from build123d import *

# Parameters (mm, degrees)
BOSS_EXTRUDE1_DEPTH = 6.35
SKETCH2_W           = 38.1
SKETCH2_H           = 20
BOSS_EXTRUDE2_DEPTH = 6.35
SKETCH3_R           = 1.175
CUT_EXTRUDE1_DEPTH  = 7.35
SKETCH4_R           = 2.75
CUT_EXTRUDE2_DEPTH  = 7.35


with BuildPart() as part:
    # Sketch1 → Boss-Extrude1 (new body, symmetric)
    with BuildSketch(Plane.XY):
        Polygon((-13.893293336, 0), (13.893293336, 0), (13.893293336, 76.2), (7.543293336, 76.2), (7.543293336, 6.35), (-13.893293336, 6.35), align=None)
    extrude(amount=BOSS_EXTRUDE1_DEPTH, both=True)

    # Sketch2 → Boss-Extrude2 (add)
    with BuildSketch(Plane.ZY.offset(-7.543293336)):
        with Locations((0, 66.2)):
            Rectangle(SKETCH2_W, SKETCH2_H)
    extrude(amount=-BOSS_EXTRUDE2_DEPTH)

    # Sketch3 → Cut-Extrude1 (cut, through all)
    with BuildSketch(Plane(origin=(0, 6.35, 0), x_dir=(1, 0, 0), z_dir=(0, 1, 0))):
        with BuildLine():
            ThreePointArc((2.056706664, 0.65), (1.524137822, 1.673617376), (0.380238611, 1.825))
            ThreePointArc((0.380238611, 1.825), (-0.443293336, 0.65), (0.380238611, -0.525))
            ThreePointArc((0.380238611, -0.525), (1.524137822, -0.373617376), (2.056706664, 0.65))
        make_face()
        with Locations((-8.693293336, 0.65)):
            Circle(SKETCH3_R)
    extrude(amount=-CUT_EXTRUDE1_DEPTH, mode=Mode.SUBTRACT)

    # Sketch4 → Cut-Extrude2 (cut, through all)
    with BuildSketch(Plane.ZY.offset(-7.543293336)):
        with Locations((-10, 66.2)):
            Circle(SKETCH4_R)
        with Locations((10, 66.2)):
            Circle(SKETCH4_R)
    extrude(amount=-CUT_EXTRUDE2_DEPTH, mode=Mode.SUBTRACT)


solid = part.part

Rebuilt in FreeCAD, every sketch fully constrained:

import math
import FreeCAD as App
import Part
import Sketcher
from FreeCAD import Vector
Q = App.Units.Quantity

doc = App.newDocument("Part")
params = doc.addObject("Spreadsheet::Sheet", "Params")
for row, (alias, value) in enumerate([
    ("sketch1_height", "3 in"),
    ("sketch1_width", "0.25 in"),
    ("pad1_length", "0.5 in"),
    ("sketch2_height", "1.5 in"),
    ("pad2_length", "0.25 in"),
], start=1):
    params.set(f"A{row}", alias)
    params.set(f"B{row}", "=" + value)
    params.setAlias(f"B{row}", alias)

body = doc.addObject("PartDesign::Body", "Body")

# Sketch on XY plane
sketch1 = doc.addObject("Sketcher::SketchObject", "Sketch")
body.addObject(sketch1)
sketch1.AttachmentSupport = (doc.XY_Plane, [""])
sketch1.MapMode = "FlatFace"
sketch1.addGeometry(Part.LineSegment(Vector(-14, 0, 0), Vector(14, 0, 0)), False)
sketch1.addGeometry(Part.LineSegment(Vector(14, 0, 0), Vector(14, 76, 0)), False)
sketch1.addGeometry(Part.LineSegment(Vector(14, 76, 0), Vector(8, 76, 0)), False)
sketch1.addGeometry(Part.LineSegment(Vector(8, 76, 0), Vector(8, 6, 0)), False)
sketch1.addGeometry(Part.LineSegment(Vector(8, 6, 0), Vector(-14, 6, 0)), False)
sketch1.addGeometry(Part.LineSegment(Vector(-14, 6, 0), Vector(-14, 0, 0)), False)
sketch1.addConstraint(Sketcher.Constraint("Coincident", 0, 2, 1, 1))
sketch1.addConstraint(Sketcher.Constraint("Coincident", 1, 2, 2, 1))
sketch1.addConstraint(Sketcher.Constraint("Coincident", 2, 2, 3, 1))
sketch1.addConstraint(Sketcher.Constraint("Coincident", 3, 2, 4, 1))
sketch1.addConstraint(Sketcher.Constraint("Coincident", 4, 2, 5, 1))
sketch1.addConstraint(Sketcher.Constraint("Coincident", 5, 2, 0, 1))
sketch1.addConstraint(Sketcher.Constraint("Horizontal", 0))
sketch1.addConstraint(Sketcher.Constraint("Vertical", 1))
sketch1.addConstraint(Sketcher.Constraint("Horizontal", 2))
sketch1.addConstraint(Sketcher.Constraint("Vertical", 3))
sketch1.addConstraint(Sketcher.Constraint("Horizontal", 4))
sketch1.addConstraint(Sketcher.Constraint("Vertical", 5))
sketch1.addConstraint(Sketcher.Constraint("Symmetric", 0, 2, 5, 2, -1, 1))
sketch1.addConstraint(Sketcher.Constraint("Equal", 2, 5))
sketch1.addConstraint(Sketcher.Constraint("DistanceY", 1, 1, 1, 2, Q("3 in")))
sketch1.addConstraint(Sketcher.Constraint("DistanceX", 2, 2, 2, 1, Q("0.25 in")))
sketch1.addConstraint(Sketcher.Constraint("DistanceX", 0, 1, 0, 2, Q("27.786587 mm")))
sketch1.setExpression("Constraints[14]", "Params.sketch1_height")
sketch1.setExpression("Constraints[15]", "Params.sketch1_width")
pad1 = doc.addObject("PartDesign::Pad", "Pad")
body.addObject(pad1)
pad1.Profile = sketch1
pad1.setExpression("Length", "Params.pad1_length")
pad1.Midplane = True

# Sketch on YZ plane
sketch2 = doc.addObject("Sketcher::SketchObject", "Sketch001")
body.addObject(sketch2)
sketch2.AttachmentSupport = (doc.YZ_Plane, [""])
sketch2.MapMode = "FlatFace"
sketch2.AttachmentOffset = App.Placement(Vector(0, 0, 7.543293), App.Rotation())
sketch2.addGeometry(Part.LineSegment(Vector(76, -19, 0), Vector(56, -19, 0)), False)
sketch2.addGeometry(Part.LineSegment(Vector(56, -19, 0), Vector(56, 19, 0)), False)
sketch2.addGeometry(Part.LineSegment(Vector(56, 19, 0), Vector(76, 19, 0)), False)
sketch2.addGeometry(Part.LineSegment(Vector(76, 19, 0), Vector(76, -19, 0)), False)
sketch2.addConstraint(Sketcher.Constraint("Coincident", 0, 2, 1, 1))
sketch2.addConstraint(Sketcher.Constraint("Coincident", 1, 2, 2, 1))
sketch2.addConstraint(Sketcher.Constraint("Coincident", 2, 2, 3, 1))
sketch2.addConstraint(Sketcher.Constraint("Coincident", 3, 2, 0, 1))
sketch2.addConstraint(Sketcher.Constraint("Horizontal", 0))
sketch2.addConstraint(Sketcher.Constraint("Vertical", 1))
sketch2.addConstraint(Sketcher.Constraint("Horizontal", 2))
sketch2.addConstraint(Sketcher.Constraint("Vertical", 3))
sketch2.addConstraint(Sketcher.Constraint("DistanceY", 1, 1, 1, 2, Q("1.5 in")))
sketch2.addConstraint(Sketcher.Constraint("DistanceX", -1, 1, 2, 2, Q("3 in")))
sketch2.addConstraint(Sketcher.Constraint("DistanceY", 0, 2, -1, 1, Q("0.75 in")))
sketch2.addConstraint(Sketcher.Constraint("DistanceX", 0, 2, 0, 1, Q("20 mm")))
sketch2.setExpression("Constraints[8]", "Params.sketch2_height")
pad2 = doc.addObject("PartDesign::Pad", "Pad001")
body.addObject(pad2)
pad2.Profile = sketch2
pad2.setExpression("Length", "Params.pad2_length")

# Sketch on XZ plane
sketch3 = doc.addObject("Sketcher::SketchObject", "Sketch002")
body.addObject(sketch3)
sketch3.AttachmentSupport = (doc.XZ_Plane, [""])
sketch3.MapMode = "FlatFace"
sketch3.AttachmentOffset = App.Placement(Vector(0, 0, -0.25 * 25.4), App.Rotation())
sketch3.addGeometry(Part.ArcOfCircle(Part.Circle(Vector(0.8, -0.6, 0), Vector(0, 0, 1), 1.3), math.radians(-110), math.radians(0)), False)
sketch3.addGeometry(Part.ArcOfCircle(Part.Circle(Vector(0.8, -0.7, 0), Vector(0, 0, 1), 1.2), math.radians(110), math.radians(250)), False)
sketch3.addGeometry(Part.ArcOfCircle(Part.Circle(Vector(0.8, -0.7, 0), Vector(0, 0, 1), 1.3), math.radians(0), math.radians(110)), False)
sketch3.addGeometry(Part.Circle(Vector(-8.7, -0.7, 0), Vector(0, 0, 1), 1.2), False)
sketch3.addConstraint(Sketcher.Constraint("Tangent", 0, 1, 1, 2))
sketch3.addConstraint(Sketcher.Constraint("Tangent", 1, 1, 2, 2))
sketch3.addConstraint(Sketcher.Constraint("Tangent", 2, 1, 0, 2))
sketch3.addConstraint(Sketcher.Constraint("Horizontal", 2, 3, 3, 3))
sketch3.addConstraint(Sketcher.Constraint("Horizontal", 3, 3, 2, 1))
sketch3.addConstraint(Sketcher.Constraint("Vertical", 0, 1, 1, 1))
sketch3.addConstraint(Sketcher.Constraint("Diameter", 3, Q("2.35 mm")))
sketch3.addConstraint(Sketcher.Constraint("Radius", 0, Q("1.25 mm")))
sketch3.addConstraint(Sketcher.Constraint("DistanceY", 0, 3, -1, 1, Q("0.65 mm")))
sketch3.addConstraint(Sketcher.Constraint("DistanceY", 0, 1, -1, 1, Q("1.825 mm")))
sketch3.addConstraint(Sketcher.Constraint("DistanceX", 3, 3, 0, 3, Q("9.5 mm")))
sketch3.addConstraint(Sketcher.Constraint("DistanceX", -1, 1, 0, 1, Q("0.380239 mm")))
pocket1 = doc.addObject("PartDesign::Pocket", "Pocket")
body.addObject(pocket1)
pocket1.Profile = sketch3
pocket1.Type = "ThroughAll"
pocket1.Reversed = True

# Sketch on YZ plane
sketch4 = doc.addObject("Sketcher::SketchObject", "Sketch003")
body.addObject(sketch4)
sketch4.AttachmentSupport = (doc.YZ_Plane, [""])
sketch4.MapMode = "FlatFace"
sketch4.AttachmentOffset = App.Placement(Vector(0, 0, 7.543293), App.Rotation())
sketch4.addGeometry(Part.Circle(Vector(66.2, -10, 0), Vector(0, 0, 1), 2.8), False)
sketch4.addGeometry(Part.Circle(Vector(66.2, 10, 0), Vector(0, 0, 1), 2.8), False)
sketch4.addConstraint(Sketcher.Constraint("Equal", 0, 1))
sketch4.addConstraint(Sketcher.Constraint("Symmetric", 0, 3, 1, 3, -1))
sketch4.addConstraint(Sketcher.Constraint("Diameter", 0, Q("5.5 mm")))
sketch4.addConstraint(Sketcher.Constraint("DistanceX", -1, 1, 0, 3, Q("66.2 mm")))
sketch4.addConstraint(Sketcher.Constraint("DistanceY", 0, 3, -1, 1, Q("10 mm")))
pocket2 = doc.addObject("PartDesign::Pocket", "Pocket001")
body.addObject(pocket2)
pocket2.Profile = sketch4
pocket2.Type = "ThroughAll"
pocket2.Reversed = True

doc.recompute()
